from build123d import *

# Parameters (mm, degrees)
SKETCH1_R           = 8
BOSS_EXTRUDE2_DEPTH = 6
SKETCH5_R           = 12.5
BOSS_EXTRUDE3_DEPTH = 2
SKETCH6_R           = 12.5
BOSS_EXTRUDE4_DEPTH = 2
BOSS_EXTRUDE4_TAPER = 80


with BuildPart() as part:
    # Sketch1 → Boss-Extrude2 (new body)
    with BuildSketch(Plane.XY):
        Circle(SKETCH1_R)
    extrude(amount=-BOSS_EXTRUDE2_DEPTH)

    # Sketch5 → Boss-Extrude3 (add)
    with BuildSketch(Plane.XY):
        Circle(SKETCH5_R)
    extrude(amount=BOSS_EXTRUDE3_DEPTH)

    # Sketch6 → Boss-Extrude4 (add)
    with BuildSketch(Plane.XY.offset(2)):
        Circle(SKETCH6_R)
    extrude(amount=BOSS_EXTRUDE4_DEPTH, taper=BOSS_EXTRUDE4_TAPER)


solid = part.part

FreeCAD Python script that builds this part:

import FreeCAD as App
import Part
import Sketcher

doc = App.newDocument("Part")
body = doc.addObject("PartDesign::Body", "Body")

sketch1 = body.newObject("Sketcher::SketchObject", "Sketch")
sketch1.AttachmentSupport = (doc.getObject("XY_Plane"), [""])
sketch1.MapMode = "FlatFace"
sketch1.addGeometry(Part.Circle(App.Vector(0, 0, 0), App.Vector(0, 0, 1), 8), False)
sketch1.addConstraint([
    Sketcher.Constraint("Coincident", 0, 3, -1, 1),
    Sketcher.Constraint("Diameter", 0, 16.0),
])
pad1 = body.newObject("PartDesign::Pad", "Pad")
pad1.Profile = sketch1
pad1.Length = 6
pad1.Reversed = True

sketch2 = body.newObject("Sketcher::SketchObject", "Sketch001")
sketch2.AttachmentSupport = (doc.getObject("XY_Plane"), [""])
sketch2.MapMode = "FlatFace"
sketch2.addGeometry(Part.Circle(App.Vector(0, 0, 0), App.Vector(0, 0, 1), 12), False)
sketch2.addConstraint([
    Sketcher.Constraint("Coincident", 0, 3, -1, 1),
    Sketcher.Constraint("Diameter", 0, 25.0),
])
pad2 = body.newObject("PartDesign::Pad", "Pad001")
pad2.Profile = sketch2
pad2.Length = 2

sketch3 = body.newObject("Sketcher::SketchObject", "Sketch002")
sketch3.AttachmentSupport = (doc.getObject("XY_Plane"), [""])
sketch3.MapMode = "FlatFace"
sketch3.AttachmentOffset = App.Placement(App.Vector(0, 0, 2), App.Rotation())
sketch3.addGeometry(Part.Circle(App.Vector(0, 0, 0), App.Vector(0, 0, 1), 12), False)
sketch3.addConstraint([
    Sketcher.Constraint("Coincident", 0, 3, -1, 1),
    Sketcher.Constraint("Diameter", 0, 25.0),
])
pad3 = body.newObject("PartDesign::Pad", "Pad002")
pad3.Profile = sketch3
pad3.Length = 2
pad3.TaperAngle = -80

doc.recompute()
